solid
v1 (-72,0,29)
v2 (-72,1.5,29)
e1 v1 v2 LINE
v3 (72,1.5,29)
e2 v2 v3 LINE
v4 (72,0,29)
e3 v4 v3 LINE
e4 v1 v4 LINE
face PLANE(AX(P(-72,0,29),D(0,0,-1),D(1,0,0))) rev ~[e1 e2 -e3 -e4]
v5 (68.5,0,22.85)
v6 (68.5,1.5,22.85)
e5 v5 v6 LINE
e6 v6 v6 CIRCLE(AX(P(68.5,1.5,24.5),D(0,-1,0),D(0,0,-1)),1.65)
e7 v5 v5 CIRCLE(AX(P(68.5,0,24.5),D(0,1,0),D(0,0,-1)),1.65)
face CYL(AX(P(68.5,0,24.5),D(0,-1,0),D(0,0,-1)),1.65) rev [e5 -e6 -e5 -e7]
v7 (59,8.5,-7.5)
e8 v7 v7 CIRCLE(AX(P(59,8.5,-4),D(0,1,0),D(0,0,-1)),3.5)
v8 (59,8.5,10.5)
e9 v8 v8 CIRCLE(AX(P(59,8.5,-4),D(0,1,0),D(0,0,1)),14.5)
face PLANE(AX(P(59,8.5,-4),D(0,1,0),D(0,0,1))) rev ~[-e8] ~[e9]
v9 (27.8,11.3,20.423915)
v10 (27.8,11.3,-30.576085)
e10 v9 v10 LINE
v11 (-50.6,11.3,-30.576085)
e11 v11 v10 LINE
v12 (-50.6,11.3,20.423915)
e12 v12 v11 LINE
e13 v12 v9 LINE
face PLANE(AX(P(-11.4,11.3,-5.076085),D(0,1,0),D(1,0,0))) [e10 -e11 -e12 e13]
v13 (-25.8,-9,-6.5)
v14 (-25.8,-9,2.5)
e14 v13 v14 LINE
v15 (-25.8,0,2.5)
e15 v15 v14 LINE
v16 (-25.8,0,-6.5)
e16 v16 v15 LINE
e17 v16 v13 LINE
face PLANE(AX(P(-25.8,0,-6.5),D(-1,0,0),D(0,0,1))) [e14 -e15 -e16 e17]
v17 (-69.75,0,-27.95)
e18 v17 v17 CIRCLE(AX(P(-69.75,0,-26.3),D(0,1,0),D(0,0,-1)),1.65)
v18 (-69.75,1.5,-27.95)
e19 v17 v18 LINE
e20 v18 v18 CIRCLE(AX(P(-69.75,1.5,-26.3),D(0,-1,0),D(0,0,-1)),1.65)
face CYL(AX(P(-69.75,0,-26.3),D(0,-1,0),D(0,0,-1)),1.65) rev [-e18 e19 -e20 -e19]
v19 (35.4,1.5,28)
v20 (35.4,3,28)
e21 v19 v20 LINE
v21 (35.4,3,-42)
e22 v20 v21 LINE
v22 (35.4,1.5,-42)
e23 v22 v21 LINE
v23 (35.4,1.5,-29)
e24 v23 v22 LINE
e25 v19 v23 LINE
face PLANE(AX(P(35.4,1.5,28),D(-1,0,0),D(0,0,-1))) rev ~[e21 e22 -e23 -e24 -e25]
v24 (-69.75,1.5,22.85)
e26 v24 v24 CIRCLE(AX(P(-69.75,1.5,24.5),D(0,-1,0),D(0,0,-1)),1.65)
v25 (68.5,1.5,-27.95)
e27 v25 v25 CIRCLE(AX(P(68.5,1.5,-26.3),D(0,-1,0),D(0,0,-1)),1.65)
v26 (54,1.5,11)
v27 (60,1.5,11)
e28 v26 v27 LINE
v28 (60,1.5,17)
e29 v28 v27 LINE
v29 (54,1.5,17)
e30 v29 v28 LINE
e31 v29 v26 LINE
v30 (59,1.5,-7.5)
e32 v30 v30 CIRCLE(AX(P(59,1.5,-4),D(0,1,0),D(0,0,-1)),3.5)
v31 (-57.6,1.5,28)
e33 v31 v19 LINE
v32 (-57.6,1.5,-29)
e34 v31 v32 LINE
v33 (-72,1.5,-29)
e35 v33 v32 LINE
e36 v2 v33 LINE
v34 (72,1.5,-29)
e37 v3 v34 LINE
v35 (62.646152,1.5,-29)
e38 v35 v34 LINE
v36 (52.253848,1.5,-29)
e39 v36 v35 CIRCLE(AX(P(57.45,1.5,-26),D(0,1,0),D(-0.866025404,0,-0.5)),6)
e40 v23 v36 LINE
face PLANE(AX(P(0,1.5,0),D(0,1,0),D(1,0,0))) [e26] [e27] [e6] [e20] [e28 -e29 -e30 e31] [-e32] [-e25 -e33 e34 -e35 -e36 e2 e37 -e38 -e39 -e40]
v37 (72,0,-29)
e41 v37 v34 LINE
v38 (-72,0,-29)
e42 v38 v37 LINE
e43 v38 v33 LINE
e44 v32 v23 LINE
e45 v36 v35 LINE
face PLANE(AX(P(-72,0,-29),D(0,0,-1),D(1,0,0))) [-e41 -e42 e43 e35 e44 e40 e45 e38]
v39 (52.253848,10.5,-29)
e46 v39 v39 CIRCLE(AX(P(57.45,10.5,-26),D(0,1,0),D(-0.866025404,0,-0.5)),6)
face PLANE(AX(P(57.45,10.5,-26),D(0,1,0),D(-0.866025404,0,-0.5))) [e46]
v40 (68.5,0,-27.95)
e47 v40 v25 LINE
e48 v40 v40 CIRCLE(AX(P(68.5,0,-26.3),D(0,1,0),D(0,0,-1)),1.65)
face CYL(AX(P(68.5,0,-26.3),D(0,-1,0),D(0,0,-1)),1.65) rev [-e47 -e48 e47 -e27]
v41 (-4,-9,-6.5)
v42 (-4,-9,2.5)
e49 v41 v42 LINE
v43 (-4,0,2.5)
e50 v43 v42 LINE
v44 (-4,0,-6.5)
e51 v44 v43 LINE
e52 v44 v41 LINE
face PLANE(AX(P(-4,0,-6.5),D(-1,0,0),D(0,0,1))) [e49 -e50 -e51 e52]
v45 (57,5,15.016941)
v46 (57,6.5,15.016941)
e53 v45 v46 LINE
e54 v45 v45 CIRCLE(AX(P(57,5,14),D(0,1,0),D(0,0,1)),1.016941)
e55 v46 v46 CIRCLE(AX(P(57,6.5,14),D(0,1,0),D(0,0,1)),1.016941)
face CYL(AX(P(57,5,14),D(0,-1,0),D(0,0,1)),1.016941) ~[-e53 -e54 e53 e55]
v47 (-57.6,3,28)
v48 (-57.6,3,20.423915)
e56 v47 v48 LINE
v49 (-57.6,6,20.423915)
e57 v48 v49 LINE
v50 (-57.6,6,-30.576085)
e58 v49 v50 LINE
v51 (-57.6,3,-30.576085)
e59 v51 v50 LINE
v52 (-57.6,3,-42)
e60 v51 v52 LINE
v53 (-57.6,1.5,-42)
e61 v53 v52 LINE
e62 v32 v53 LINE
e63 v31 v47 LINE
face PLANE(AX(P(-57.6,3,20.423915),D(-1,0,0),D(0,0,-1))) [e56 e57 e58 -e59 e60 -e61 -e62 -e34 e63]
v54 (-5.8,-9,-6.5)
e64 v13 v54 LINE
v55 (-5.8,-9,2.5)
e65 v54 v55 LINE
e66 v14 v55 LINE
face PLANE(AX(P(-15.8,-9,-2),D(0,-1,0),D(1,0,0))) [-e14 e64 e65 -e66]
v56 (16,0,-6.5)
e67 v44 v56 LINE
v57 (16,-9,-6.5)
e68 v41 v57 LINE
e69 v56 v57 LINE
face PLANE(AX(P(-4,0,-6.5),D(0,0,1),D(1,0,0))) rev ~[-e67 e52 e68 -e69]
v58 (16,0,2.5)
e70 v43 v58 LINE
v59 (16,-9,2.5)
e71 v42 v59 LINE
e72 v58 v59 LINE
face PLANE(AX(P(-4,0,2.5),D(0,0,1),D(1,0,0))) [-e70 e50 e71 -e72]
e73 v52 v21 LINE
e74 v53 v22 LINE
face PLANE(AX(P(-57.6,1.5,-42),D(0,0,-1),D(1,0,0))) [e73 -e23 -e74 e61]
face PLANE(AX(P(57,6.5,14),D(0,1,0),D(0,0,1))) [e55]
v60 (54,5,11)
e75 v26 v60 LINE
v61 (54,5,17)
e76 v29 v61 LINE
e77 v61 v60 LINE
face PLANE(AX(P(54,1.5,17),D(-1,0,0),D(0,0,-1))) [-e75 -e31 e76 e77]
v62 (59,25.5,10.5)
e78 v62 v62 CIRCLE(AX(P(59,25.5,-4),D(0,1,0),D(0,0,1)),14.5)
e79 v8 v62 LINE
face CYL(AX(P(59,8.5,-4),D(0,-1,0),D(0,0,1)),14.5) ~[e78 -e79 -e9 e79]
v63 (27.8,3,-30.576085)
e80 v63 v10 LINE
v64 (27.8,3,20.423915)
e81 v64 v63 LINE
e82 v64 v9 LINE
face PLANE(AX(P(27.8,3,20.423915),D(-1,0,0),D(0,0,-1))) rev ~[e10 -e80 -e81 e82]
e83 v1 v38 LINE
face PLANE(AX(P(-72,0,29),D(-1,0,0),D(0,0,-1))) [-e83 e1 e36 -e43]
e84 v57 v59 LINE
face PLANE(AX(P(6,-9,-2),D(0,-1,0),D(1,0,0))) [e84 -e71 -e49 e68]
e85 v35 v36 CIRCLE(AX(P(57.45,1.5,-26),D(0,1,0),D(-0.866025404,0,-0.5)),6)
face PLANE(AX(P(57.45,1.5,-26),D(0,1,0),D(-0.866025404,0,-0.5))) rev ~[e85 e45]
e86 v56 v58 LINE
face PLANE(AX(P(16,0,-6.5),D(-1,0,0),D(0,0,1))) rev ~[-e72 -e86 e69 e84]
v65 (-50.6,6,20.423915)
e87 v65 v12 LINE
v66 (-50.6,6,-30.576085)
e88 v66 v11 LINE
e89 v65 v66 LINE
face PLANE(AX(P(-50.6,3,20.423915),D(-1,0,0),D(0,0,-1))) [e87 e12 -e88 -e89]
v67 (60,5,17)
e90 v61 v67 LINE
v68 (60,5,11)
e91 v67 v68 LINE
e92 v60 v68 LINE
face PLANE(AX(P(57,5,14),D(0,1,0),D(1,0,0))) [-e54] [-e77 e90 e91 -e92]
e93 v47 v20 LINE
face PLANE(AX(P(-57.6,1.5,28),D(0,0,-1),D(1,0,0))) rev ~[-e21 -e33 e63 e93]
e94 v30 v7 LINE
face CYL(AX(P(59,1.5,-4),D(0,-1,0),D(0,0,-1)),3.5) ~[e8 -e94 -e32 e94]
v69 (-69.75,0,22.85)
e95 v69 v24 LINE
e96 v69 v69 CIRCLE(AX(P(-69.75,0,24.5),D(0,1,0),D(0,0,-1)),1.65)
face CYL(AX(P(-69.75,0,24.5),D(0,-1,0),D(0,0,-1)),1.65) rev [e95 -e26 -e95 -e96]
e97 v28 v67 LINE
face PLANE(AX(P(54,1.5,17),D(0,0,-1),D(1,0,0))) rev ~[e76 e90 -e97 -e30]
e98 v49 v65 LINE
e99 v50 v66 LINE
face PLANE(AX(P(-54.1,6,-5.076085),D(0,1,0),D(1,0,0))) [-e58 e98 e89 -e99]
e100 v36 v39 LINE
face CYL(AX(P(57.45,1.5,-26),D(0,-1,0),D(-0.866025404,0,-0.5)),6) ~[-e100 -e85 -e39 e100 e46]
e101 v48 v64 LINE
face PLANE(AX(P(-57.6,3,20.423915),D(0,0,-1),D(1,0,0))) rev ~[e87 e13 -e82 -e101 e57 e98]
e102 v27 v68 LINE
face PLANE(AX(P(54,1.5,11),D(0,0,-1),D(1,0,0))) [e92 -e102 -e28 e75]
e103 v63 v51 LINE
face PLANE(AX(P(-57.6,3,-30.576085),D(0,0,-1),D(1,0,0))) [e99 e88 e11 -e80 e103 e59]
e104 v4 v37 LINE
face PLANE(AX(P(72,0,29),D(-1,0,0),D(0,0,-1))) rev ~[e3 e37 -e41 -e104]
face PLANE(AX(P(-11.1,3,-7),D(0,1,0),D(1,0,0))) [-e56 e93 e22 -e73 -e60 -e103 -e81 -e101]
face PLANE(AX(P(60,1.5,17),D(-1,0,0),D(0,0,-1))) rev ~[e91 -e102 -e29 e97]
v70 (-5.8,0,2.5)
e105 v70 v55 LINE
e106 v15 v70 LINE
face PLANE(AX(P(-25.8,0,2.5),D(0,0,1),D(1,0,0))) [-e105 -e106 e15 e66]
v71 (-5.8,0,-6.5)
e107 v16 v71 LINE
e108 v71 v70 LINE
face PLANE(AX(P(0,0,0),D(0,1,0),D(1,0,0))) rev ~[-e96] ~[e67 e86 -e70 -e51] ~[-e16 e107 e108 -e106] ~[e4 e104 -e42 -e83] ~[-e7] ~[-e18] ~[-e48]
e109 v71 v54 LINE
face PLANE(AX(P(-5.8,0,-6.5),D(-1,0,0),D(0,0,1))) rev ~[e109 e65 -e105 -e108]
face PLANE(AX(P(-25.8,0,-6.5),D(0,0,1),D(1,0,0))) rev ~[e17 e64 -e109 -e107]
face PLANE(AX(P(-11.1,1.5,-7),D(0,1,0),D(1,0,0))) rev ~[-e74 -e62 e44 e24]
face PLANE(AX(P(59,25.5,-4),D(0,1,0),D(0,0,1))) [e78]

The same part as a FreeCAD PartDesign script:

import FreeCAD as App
import Part
import Sketcher
Q = App.Units.Quantity

doc = App.newDocument("Part")
params = doc.addObject("Spreadsheet::Sheet", "Params")
for row, (alias, value) in enumerate([
    ("sketch1_width", "144 mm"),
    ("sketch1_height", "58 mm"),
    ("pad1_length", "1.5 mm"),
    ("sketch2_width", "93 mm"),
    ("sketch2_height", "70 mm"),
    ("pad2_length", "1.5 mm"),
    ("sketch3_height", "51 mm"),
    ("sketch3_width", "78.4 mm"),
    ("pad3_length", "8.3 mm"),
    ("sketch4_width", "7 mm"),
    ("sketch4_height", "51 mm"),
    ("pad4_length", "3 mm"),
    ("sketch5_diameter", "7 mm"),
    ("pad5_length", "7 mm"),
    ("sketch6_diameter", "29 mm"),
    ("pad6_length", "17 mm"),
    ("sketch7_diameter", "12 mm"),
    ("pad7_length", "9 mm"),
    ("sketch8_width", "6 mm"),
    ("pad8_length", "3.5 mm"),
    ("pad9_length", "1.5 mm"),
    ("sketch10_width", "20 mm"),
    ("sketch10_height", "9 mm"),
    ("pad10_length", "9 mm"),
    ("sketch11_diameter", "3.3 mm"),
    ("pocket1_length", "10 mm"),
], start=1):
    params.set(f"A{row}", alias)
    params.set(f"B{row}", "=" + value)
    params.setAlias(f"B{row}", alias)

body = doc.addObject("PartDesign::Body", "Body")

# Sketch on XZ plane
sketch1 = body.newObject("Sketcher::SketchObject", "Sketch")
sketch1.AttachmentSupport = (doc.getObject("XZ_Plane"), [""])
sketch1.MapMode = "FlatFace"
sketch1.addGeometry([
    Part.LineSegment(App.Vector(-72, -29, 0), App.Vector(-72, 29, 0)),
    Part.LineSegment(App.Vector(-72, 29, 0), App.Vector(72, 29, 0)),
    Part.LineSegment(App.Vector(72, 29, 0), App.Vector(72, -29, 0)),
    Part.LineSegment(App.Vector(72, -29, 0), App.Vector(-72, -29, 0)),
], False)
sketch1.addConstraint([
    Sketcher.Constraint("Coincident", 0, 2, 1, 1),
    Sketcher.Constraint("Coincident", 1, 2, 2, 1),
    Sketcher.Constraint("Coincident", 2, 2, 3, 1),
    Sketcher.Constraint("Coincident", 3, 2, 0, 1),
    Sketcher.Constraint("Vertical", 0),
    Sketcher.Constraint("Horizontal", 1),
    Sketcher.Constraint("Vertical", 2),
    Sketcher.Constraint("Horizontal", 3),
    Sketcher.Constraint("Symmetric", 0, 2, 2, 2, -1, 1),
    Sketcher.Constraint("DistanceX", 1, 1, 1, 2, Q("144 mm")),
    Sketcher.Constraint("DistanceY", 0, 1, 0, 2, Q("58 mm")),
])
sketch1.setExpression("Constraints[9]", "Params.sketch1_width")
sketch1.setExpression("Constraints[10]", "Params.sketch1_height")
pad1 = body.newObject("PartDesign::Pad", "Pad")
pad1.Profile = sketch1
pad1.setExpression("Length", "Params.pad1_length")
pad1.Reversed = True

# Sketch on XZ plane
sketch2 = body.newObject("Sketcher::SketchObject", "Sketch001")
sketch2.AttachmentSupport = (doc.getObject("XZ_Plane"), [""])
sketch2.MapMode = "FlatFace"
sketch2.AttachmentOffset = App.Placement(App.Vector(0, 0, -1.5), App.Rotation())
sketch2.addGeometry([
    Part.LineSegment(App.Vector(-58, -42, 0), App.Vector(-58, 28, 0)),
    Part.LineSegment(App.Vector(-58, 28, 0), App.Vector(35, 28, 0)),
    Part.LineSegment(App.Vector(35, 28, 0), App.Vector(35, -42, 0)),
    Part.LineSegment(App.Vector(35, -42, 0), App.Vector(-58, -42, 0)),
], False)
sketch2.addConstraint([
    Sketcher.Constraint("Coincident", 0, 2, 1, 1),
    Sketcher.Constraint("Coincident", 1, 2, 2, 1),
    Sketcher.Constraint("Coincident", 2, 2, 3, 1),
    Sketcher.Constraint("Coincident", 3, 2, 0, 1),
    Sketcher.Constraint("Vertical", 0),
    Sketcher.Constraint("Horizontal", 1),
    Sketcher.Constraint("Vertical", 2),
    Sketcher.Constraint("Horizontal", 3),
    Sketcher.Constraint("DistanceX", 1, 1, 1, 2, Q("93 mm")),
    Sketcher.Constraint("DistanceY", 0, 1, 0, 2, Q("70 mm")),
    Sketcher.Constraint("DistanceY", -1, 1, 0, 2, Q("28 mm")),
    Sketcher.Constraint("DistanceX", 0, 2, -1, 1, Q("57.6 mm")),
])
sketch2.setExpression("Constraints[8]", "Params.sketch2_width")
sketch2.setExpression("Constraints[9]", "Params.sketch2_height")
pad2 = body.newObject("PartDesign::Pad", "Pad001")
pad2.Profile = sketch2
pad2.setExpression("Length", "Params.pad2_length")
pad2.Reversed = True

# Sketch on XZ plane
sketch3 = body.newObject("Sketcher::SketchObject", "Sketch002")
sketch3.AttachmentSupport = (doc.getObject("XZ_Plane"), [""])
sketch3.MapMode = "FlatFace"
sketch3.AttachmentOffset = App.Placement(App.Vector(0, 0, -3), App.Rotation())
sketch3.addGeometry([
    Part.LineSegment(App.Vector(-51, -31, 0), App.Vector(-51, 20, 0)),
    Part.LineSegment(App.Vector(-51, 20, 0), App.Vector(28, 20, 0)),
    Part.LineSegment(App.Vector(28, 20, 0), App.Vector(28, -31, 0)),
    Part.LineSegment(App.Vector(28, -31, 0), App.Vector(-51, -31, 0)),
], False)
sketch3.addConstraint([
    Sketcher.Constraint("Coincident", 0, 2, 1, 1),
    Sketcher.Constraint("Coincident", 1, 2, 2, 1),
    Sketcher.Constraint("Coincident", 2, 2, 3, 1),
    Sketcher.Constraint("Coincident", 3, 2, 0, 1),
    Sketcher.Constraint("Vertical", 0),
    Sketcher.Constraint("Horizontal", 1),
    Sketcher.Constraint("Vertical", 2),
    Sketcher.Constraint("Horizontal", 3),
    Sketcher.Constraint("DistanceY", 0, 1, 0, 2, Q("51 mm")),
    Sketcher.Constraint("DistanceX", 1, 1, 1, 2, Q("78.4 mm")),
    Sketcher.Constraint("DistanceX", 0, 2, -1, 1, Q("50.6 mm")),
    Sketcher.Constraint("DistanceY", -1, 1, 0, 2, Q("20.423915 mm")),
])
sketch3.setExpression("Constraints[8]", "Params.sketch3_height")
sketch3.setExpression("Constraints[9]", "Params.sketch3_width")
pad3 = body.newObject("PartDesign::Pad", "Pad002")
pad3.Profile = sketch3
pad3.setExpression("Length", "Params.pad3_length")
pad3.Reversed = True

# Sketch on XZ plane
sketch4 = body.newObject("Sketcher::SketchObject", "Sketch003")
sketch4.AttachmentSupport = (doc.getObject("XZ_Plane"), [""])
sketch4.MapMode = "FlatFace"
sketch4.AttachmentOffset = App.Placement(App.Vector(0, 0, -3), App.Rotation())
sketch4.addGeometry([
    Part.LineSegment(App.Vector(-58, -31, 0), App.Vector(-58, 20, 0)),
    Part.LineSegment(App.Vector(-58, 20, 0), App.Vector(-51, 20, 0)),
    Part.LineSegment(App.Vector(-51, 20, 0), App.Vector(-51, -31, 0)),
    Part.LineSegment(App.Vector(-51, -31, 0), App.Vector(-58, -31, 0)),
], False)
sketch4.addConstraint([
    Sketcher.Constraint("Coincident", 0, 2, 1, 1),
    Sketcher.Constraint("Coincident", 1, 2, 2, 1),
    Sketcher.Constraint("Coincident", 2, 2, 3, 1),
    Sketcher.Constraint("Coincident", 3, 2, 0, 1),
    Sketcher.Constraint("Vertical", 0),
    Sketcher.Constraint("Horizontal", 1),
    Sketcher.Constraint("Vertical", 2),
    Sketcher.Constraint("Horizontal", 3),
    Sketcher.Constraint("DistanceX", 1, 1, 1, 2, Q("7 mm")),
    Sketcher.Constraint("DistanceY", 0, 1, 0, 2, Q("51 mm")),
    Sketcher.Constraint("DistanceX", 0, 2, -1, 1, Q("57.6 mm")),
    Sketcher.Constraint("DistanceY", -1, 1, 0, 2, Q("20.423915 mm")),
])
sketch4.setExpression("Constraints[8]", "Params.sketch4_width")
sketch4.setExpression("Constraints[9]", "Params.sketch4_height")
pad4 = body.newObject("PartDesign::Pad", "Pad003")
pad4.Profile = sketch4
pad4.setExpression("Length", "Params.pad4_length")
pad4.Reversed = True

# Sketch on XZ plane
sketch5 = body.newObject("Sketcher::SketchObject", "Sketch004")
sketch5.AttachmentSupport = (doc.getObject("XZ_Plane"), [""])
sketch5.MapMode = "FlatFace"
sketch5.AttachmentOffset = App.Placement(App.Vector(0, 0, -1.5), App.Rotation())
sketch5.addGeometry(Part.Circle(App.Vector(59, -4, 0), App.Vector(0, 0, 1), 3.5), False)
sketch5.addConstraint([
    Sketcher.Constraint("Diameter", 0, Q("7 mm")),
    Sketcher.Constraint("DistanceX", -1, 1, 0, 3, Q("59 mm")),
    Sketcher.Constraint("DistanceY", 0, 3, -1, 1, Q("4 mm")),
])
sketch5.setExpression("Constraints[0]", "Params.sketch5_diameter")
pad5 = body.newObject("PartDesign::Pad", "Pad004")
pad5.Profile = sketch5
pad5.setExpression("Length", "Params.pad5_length")
pad5.Reversed = True

# Sketch on XZ plane
sketch6 = body.newObject("Sketcher::SketchObject", "Sketch005")
sketch6.AttachmentSupport = (doc.getObject("XZ_Plane"), [""])
sketch6.MapMode = "FlatFace"
sketch6.AttachmentOffset = App.Placement(App.Vector(0, 0, -8.5), App.Rotation())
sketch6.addGeometry(Part.Circle(App.Vector(59, -4, 0), App.Vector(0, 0, 1), 14), False)
sketch6.addConstraint([
    Sketcher.Constraint("Diameter", 0, Q("29 mm")),
    Sketcher.Constraint("DistanceX", -1, 1, 0, 3, Q("59 mm")),
    Sketcher.Constraint("DistanceY", 0, 3, -1, 1, Q("4 mm")),
])
sketch6.setExpression("Constraints[0]", "Params.sketch6_diameter")
pad6 = body.newObject("PartDesign::Pad", "Pad005")
pad6.Profile = sketch6
pad6.setExpression("Length", "Params.pad6_length")
pad6.Reversed = True

# Sketch on XZ plane
sketch7 = body.newObject("Sketcher::SketchObject", "Sketch006")
sketch7.AttachmentSupport = (doc.getObject("XZ_Plane"), [""])
sketch7.MapMode = "FlatFace"
sketch7.AttachmentOffset = App.Placement(App.Vector(0, 0, -1.5), App.Rotation())
sketch7.addGeometry(Part.Circle(App.Vector(57, -26, 0), App.Vector(0, 0, 1), 6), False)
sketch7.addConstraint([
    Sketcher.Constraint("Diameter", 0, Q("12 mm")),
    Sketcher.Constraint("DistanceY", 0, 3, -1, 1, Q("26 mm")),
    Sketcher.Constraint("DistanceX", -1, 1, 0, 3, Q("57.45 mm")),
])
sketch7.setExpression("Constraints[0]", "Params.sketch7_diameter")
pad7 = body.newObject("PartDesign::Pad", "Pad006")
pad7.Profile = sketch7
pad7.setExpression("Length", "Params.pad7_length")
pad7.Reversed = True

# Sketch on XZ plane
sketch8 = body.newObject("Sketcher::SketchObject", "Sketch007")
sketch8.AttachmentSupport = (doc.getObject("XZ_Plane"), [""])
sketch8.MapMode = "FlatFace"
sketch8.AttachmentOffset = App.Placement(App.Vector(0, 0, -1.5), App.Rotation())
sketch8.addGeometry([
    Part.LineSegment(App.Vector(54, 11, 0), App.Vector(54, 17, 0)),
    Part.LineSegment(App.Vector(54, 17, 0), App.Vector(60, 17, 0)),
    Part.LineSegment(App.Vector(60, 17, 0), App.Vector(60, 11, 0)),
    Part.LineSegment(App.Vector(60, 11, 0), App.Vector(54, 11, 0)),
], False)
sketch8.addConstraint([
    Sketcher.Constraint("Coincident", 0, 2, 1, 1),
    Sketcher.Constraint("Coincident", 1, 2, 2, 1),
    Sketcher.Constraint("Coincident", 2, 2, 3, 1),
    Sketcher.Constraint("Coincident", 3, 2, 0, 1),
    Sketcher.Constraint("Vertical", 0),
    Sketcher.Constraint("Horizontal", 1),
    Sketcher.Constraint("Vertical", 2),
    Sketcher.Constraint("Horizontal", 3),
    Sketcher.Constraint("Equal", 3, 0),
    Sketcher.Constraint("DistanceX", 1, 1, 1, 2, Q("6 mm")),
    Sketcher.Constraint("DistanceX", -1, 1, 0, 2, Q("54 mm")),
    Sketcher.Constraint("DistanceY", -1, 1, 0, 2, Q("17 mm")),
])
sketch8.setExpression("Constraints[9]", "Params.sketch8_width")
pad8 = body.newObject("PartDesign::Pad", "Pad007")
pad8.Profile = sketch8
pad8.setExpression("Length", "Params.pad8_length")
pad8.Reversed = True

# Sketch on XZ plane
sketch9 = body.newObject("Sketcher::SketchObject", "Sketch008")
sketch9.AttachmentSupport = (doc.getObject("XZ_Plane"), [""])
sketch9.MapMode = "FlatFace"
sketch9.AttachmentOffset = App.Placement(App.Vector(0, 0, -5), App.Rotation())
sketch9.addGeometry(Part.Circle(App.Vector(57, 14, 0), App.Vector(0, 0, 1), 1), False)
sketch9.addConstraint([
    Sketcher.Constraint("DistanceX", -1, 1, 0, 3, Q("57 mm")),
    Sketcher.Constraint("DistanceY", -1, 1, 0, 3, Q("14 mm")),
    Sketcher.Constraint("Diameter", 0, Q("2.033883 mm")),
])
pad9 = body.newObject("PartDesign::Pad", "Pad008")
pad9.Profile = sketch9
pad9.setExpression("Length", "Params.pad9_length")
pad9.Reversed = True

# Sketch on XZ plane
sketch10 = body.newObject("Sketcher::SketchObject", "Sketch009")
sketch10.AttachmentSupport = (doc.getObject("XZ_Plane"), [""])
sketch10.MapMode = "FlatFace"
sketch10.addGeometry([
    Part.LineSegment(App.Vector(-4, 2, 0), App.Vector(-4, -6, 0)),  # 0
    Part.LineSegment(App.Vector(-4, -6, 0), App.Vector(16, -6, 0)),  # 1
    Part.LineSegment(App.Vector(16, -6, 0), App.Vector(16, 2, 0)),  # 2
    Part.LineSegment(App.Vector(16, 2, 0), App.Vector(-4, 2, 0)),  # 3
    Part.LineSegment(App.Vector(-26, 2, 0), App.Vector(-26, -6, 0)),  # 4
    Part.LineSegment(App.Vector(-26, -6, 0), App.Vector(-6, -6, 0)),  # 5
    Part.LineSegment(App.Vector(-6, -6, 0), App.Vector(-6, 2, 0)),  # 6
    Part.LineSegment(App.Vector(-6, 2, 0), App.Vector(-26, 2, 0)),  # 7
], False)
sketch10.addConstraint([
    Sketcher.Constraint("Coincident", 0, 2, 1, 1),
    Sketcher.Constraint("Coincident", 1, 2, 2, 1),
    Sketcher.Constraint("Coincident", 2, 2, 3, 1),
    Sketcher.Constraint("Coincident", 3, 2, 0, 1),
    Sketcher.Constraint("Coincident", 4, 2, 5, 1),
    Sketcher.Constraint("Coincident", 5, 2, 6, 1),
    Sketcher.Constraint("Coincident", 6, 2, 7, 1),
    Sketcher.Constraint("Coincident", 7, 2, 4, 1),
    Sketcher.Constraint("Vertical", 0),
    Sketcher.Constraint("Horizontal", 1),
    Sketcher.Constraint("Vertical", 2),
    Sketcher.Constraint("Horizontal", 3),
    Sketcher.Constraint("Vertical", 4),
    Sketcher.Constraint("Horizontal", 5),
    Sketcher.Constraint("Vertical", 6),
    Sketcher.Constraint("Horizontal", 7),
    Sketcher.Constraint("Horizontal", 1, 2, 4, 2),
    Sketcher.Constraint("Horizontal", 3, 2, 6, 2),
    Sketcher.Constraint("Equal", 3, 5),
    Sketcher.Constraint("DistanceX", 1, 1, 1, 2, Q("20 mm")),
    Sketcher.Constraint("DistanceY", 0, 2, 0, 1, Q("9 mm")),
    Sketcher.Constraint("DistanceX", 0, 2, -1, 1, Q("4 mm")),
    Sketcher.Constraint("DistanceY", 0, 2, -1, 1, Q("6.5 mm")),
    Sketcher.Constraint("DistanceX", 4, 2, -1, 1, Q("25.8 mm")),
])
sketch10.setExpression("Constraints[19]", "Params.sketch10_width")
sketch10.setExpression("Constraints[20]", "Params.sketch10_height")
pad10 = body.newObject("PartDesign::Pad", "Pad009")
pad10.Profile = sketch10
pad10.setExpression("Length", "Params.pad10_length")

# Sketch on XZ plane
sketch11 = body.newObject("Sketcher::SketchObject", "Sketch010")
sketch11.AttachmentSupport = (doc.getObject("XZ_Plane"), [""])
sketch11.MapMode = "FlatFace"
sketch11.addGeometry([
    Part.Circle(App.Vector(68.5, -26.3, 0), App.Vector(0, 0, 1), 1.6),
    Part.Circle(App.Vector(68.5, 24.5, 0), App.Vector(0, 0, 1), 1.6),
    Part.Circle(App.Vector(-69.8, -26.3, 0), App.Vector(0, 0, 1), 1.6),
    Part.Circle(App.Vector(-69.8, 24.5, 0), App.Vector(0, 0, 1), 1.6),
], False)
sketch11.addConstraint([
    Sketcher.Constraint("Equal", 0, 1),
    Sketcher.Constraint("Equal", 1, 2),
    Sketcher.Constraint("Equal", 2, 3),
    Sketcher.Constraint("Horizontal", 0, 3, 2, 3),
    Sketcher.Constraint("Horizontal", 1, 3, 3, 3),
    Sketcher.Constraint("Vertical", 0, 3, 1, 3),
    Sketcher.Constraint("Vertical", 2, 3, 3, 3),
    Sketcher.Constraint("Diameter", 0, Q("3.3 mm")),
    Sketcher.Constraint("DistanceX", -1, 1, 0, 3, Q("68.5 mm")),
    Sketcher.Constraint("DistanceY", 0, 3, -1, 1, Q("26.3 mm")),
    Sketcher.Constraint("DistanceY", -1, 1, 1, 3, Q("24.5 mm")),
    Sketcher.Constraint("DistanceX", 2, 3, -1, 1, Q("69.75 mm")),
])
sketch11.setExpression("Constraints[7]", "Params.sketch11_diameter")
pocket1 = body.newObject("PartDesign::Pocket", "Pocket")
pocket1.Profile = sketch11
pocket1.setExpression("Length", "Params.pocket1_length")

doc.recompute()
